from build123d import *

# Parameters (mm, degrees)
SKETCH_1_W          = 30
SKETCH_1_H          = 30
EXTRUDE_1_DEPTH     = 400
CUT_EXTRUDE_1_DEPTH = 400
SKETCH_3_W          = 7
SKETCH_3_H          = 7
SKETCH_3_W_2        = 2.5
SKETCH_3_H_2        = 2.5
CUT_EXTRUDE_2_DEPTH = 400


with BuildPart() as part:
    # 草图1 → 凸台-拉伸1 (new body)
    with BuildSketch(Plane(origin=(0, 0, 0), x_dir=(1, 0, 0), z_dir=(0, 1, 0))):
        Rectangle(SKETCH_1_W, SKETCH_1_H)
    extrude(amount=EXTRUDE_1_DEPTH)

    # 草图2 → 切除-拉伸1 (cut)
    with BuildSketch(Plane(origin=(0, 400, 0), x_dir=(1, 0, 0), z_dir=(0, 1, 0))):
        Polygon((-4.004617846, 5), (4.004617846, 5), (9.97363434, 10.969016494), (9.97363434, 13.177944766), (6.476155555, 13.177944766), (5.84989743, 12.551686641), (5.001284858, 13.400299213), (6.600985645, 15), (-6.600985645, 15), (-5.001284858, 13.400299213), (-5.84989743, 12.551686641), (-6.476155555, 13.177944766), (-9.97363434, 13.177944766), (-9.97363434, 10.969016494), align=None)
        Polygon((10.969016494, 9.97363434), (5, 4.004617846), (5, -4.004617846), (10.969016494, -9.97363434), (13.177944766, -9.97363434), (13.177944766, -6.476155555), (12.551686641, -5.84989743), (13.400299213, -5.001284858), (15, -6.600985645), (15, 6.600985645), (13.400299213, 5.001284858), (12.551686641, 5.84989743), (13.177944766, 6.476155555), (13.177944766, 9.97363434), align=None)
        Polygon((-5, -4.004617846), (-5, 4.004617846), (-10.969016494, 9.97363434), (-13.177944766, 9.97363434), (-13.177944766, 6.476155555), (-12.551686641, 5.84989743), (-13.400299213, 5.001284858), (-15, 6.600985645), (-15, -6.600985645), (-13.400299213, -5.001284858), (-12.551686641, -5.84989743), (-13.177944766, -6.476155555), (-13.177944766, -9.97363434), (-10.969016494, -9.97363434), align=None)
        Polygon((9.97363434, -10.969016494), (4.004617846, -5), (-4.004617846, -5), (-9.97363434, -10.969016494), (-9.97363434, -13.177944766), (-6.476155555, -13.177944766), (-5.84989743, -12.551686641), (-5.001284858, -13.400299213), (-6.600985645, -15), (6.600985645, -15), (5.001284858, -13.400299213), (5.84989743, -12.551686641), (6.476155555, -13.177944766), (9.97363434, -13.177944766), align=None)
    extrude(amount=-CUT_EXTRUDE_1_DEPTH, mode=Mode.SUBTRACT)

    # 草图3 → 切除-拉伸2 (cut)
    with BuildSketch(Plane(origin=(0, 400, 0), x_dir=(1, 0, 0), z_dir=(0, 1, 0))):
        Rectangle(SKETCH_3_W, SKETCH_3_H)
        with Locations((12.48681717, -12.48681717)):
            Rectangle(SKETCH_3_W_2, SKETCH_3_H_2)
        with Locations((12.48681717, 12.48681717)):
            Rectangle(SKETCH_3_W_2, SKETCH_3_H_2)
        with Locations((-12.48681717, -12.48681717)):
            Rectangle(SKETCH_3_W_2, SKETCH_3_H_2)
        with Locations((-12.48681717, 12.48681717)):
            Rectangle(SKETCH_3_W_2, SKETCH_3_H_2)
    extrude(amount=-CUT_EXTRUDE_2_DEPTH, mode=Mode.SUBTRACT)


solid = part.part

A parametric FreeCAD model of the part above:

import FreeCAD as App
import Part
import Sketcher
from FreeCAD import Vector
Q = App.Units.Quantity


def add_polygon(sketch, points):
    """Adds a closed chain of lines whose ends are joined by coincident constraints."""
    first, n = sketch.GeometryCount, len(points)
    for a, b in zip(points, points[1:] + points[:1]):
        sketch.addGeometry(Part.LineSegment(App.Vector(*a, 0), App.Vector(*b, 0)), False)
    for i in range(n):
        sketch.addConstraint(Sketcher.Constraint("Coincident", first + i, 2, first + (i + 1) % n, 1))

doc = App.newDocument("Part")
body = doc.addObject("PartDesign::Body", "Body")

# Sketch on XZ plane
sketch1 = doc.addObject("Sketcher::SketchObject", "Sketch")
body.addObject(sketch1)
sketch1.AttachmentSupport = (doc.XZ_Plane, [""])
sketch1.MapMode = "FlatFace"
add_polygon(sketch1, [(-15, -15), (-15, 15), (15, 15), (15, -15)])  # lines 0-3
sketch1.addConstraint(Sketcher.Constraint("Vertical", 0))
sketch1.addConstraint(Sketcher.Constraint("Horizontal", 1))
sketch1.addConstraint(Sketcher.Constraint("Vertical", 2))
sketch1.addConstraint(Sketcher.Constraint("Horizontal", 3))
sketch1.addConstraint(Sketcher.Constraint("Symmetric", 0, 2, 2, 2, -1, 1))
sketch1.addConstraint(Sketcher.Constraint("Equal", 3, 0))
sketch1.addConstraint(Sketcher.Constraint("DistanceX", 1, 1, 1, 2, Q("30 mm")))
pad1 = doc.addObject("PartDesign::Pad", "Pad")
body.addObject(pad1)
pad1.Profile = sketch1
pad1.Length = 400
pad1.Reversed = True

# Sketch on XZ plane
sketch2 = doc.addObject("Sketcher::SketchObject", "Sketch001")
body.addObject(sketch2)
sketch2.AttachmentSupport = (doc.XZ_Plane, [""])
sketch2.MapMode = "FlatFace"
sketch2.AttachmentOffset = App.Placement(Vector(0, 0, -400), App.Rotation())
add_polygon(sketch2, [(-4, -5), (4, -5), (10, -11), (10, -13.2), (6.5, -13.2), (5.8, -12.6), (5, -13.4), (6.6, -15), (-6.6, -15), (-5, -13.4), (-5.8, -12.6), (-6.5, -13.2), (-10, -13.2), (-10, -11)])  # lines 0-13
add_polygon(sketch2, [(11, -10), (5, -4), (5, 4), (11, 10), (13.2, 10), (13.2, 6.5), (12.6, 5.8), (13.4, 5), (15, 6.6), (15, -6.6), (13.4, -5), (12.6, -5.8), (13.2, -6.5), (13.2, -10)])  # lines 14-27
add_polygon(sketch2, [(-5, 4), (-5, -4), (-11, -10), (-13.2, -10), (-13.2, -6.5), (-12.6, -5.8), (-13.4, -5), (-15, -6.6), (-15, 6.6), (-13.4, 5), (-12.6, 5.8), (-13.2, 6.5), (-13.2, 10), (-11, 10)])  # lines 28-41
add_polygon(sketch2, [(10, 11), (4, 5), (-4, 5), (-10, 11), (-10, 13.2), (-6.5, 13.2), (-5.8, 12.6), (-5, 13.4), (-6.6, 15), (6.6, 15), (5, 13.4), (5.8, 12.6), (6.5, 13.2), (10, 13.2)])  # lines 42-55
sketch2.addConstraint(Sketcher.Constraint("Horizontal", 0))
sketch2.addConstraint(Sketcher.Constraint("Vertical", 2))
sketch2.addConstraint(Sketcher.Constraint("Horizontal", 3))
sketch2.addConstraint(Sketcher.Constraint("Horizontal", 7))
sketch2.addConstraint(Sketcher.Constraint("Horizontal", 11))
sketch2.addConstraint(Sketcher.Constraint("Vertical", 12))
sketch2.addConstraint(Sketcher.Constraint("Vertical", 15))
sketch2.addConstraint(Sketcher.Constraint("Horizontal", 17))
sketch2.addConstraint(Sketcher.Constraint("Vertical", 18))
sketch2.addConstraint(Sketcher.Constraint("Vertical", 22))
sketch2.addConstraint(Sketcher.Constraint("Vertical", 26))
sketch2.addConstraint(Sketcher.Constraint("Horizontal", 27))
sketch2.addConstraint(Sketcher.Constraint("Vertical", 28))
sketch2.addConstraint(Sketcher.Constraint("Horizontal", 30))
sketch2.addConstraint(Sketcher.Constraint("Vertical", 31))
sketch2.addConstraint(Sketcher.Constraint("Vertical", 35))
sketch2.addConstraint(Sketcher.Constraint("Vertical", 39))
sketch2.addConstraint(Sketcher.Constraint("Horizontal", 40))
sketch2.addConstraint(Sketcher.Constraint("Horizontal", 43))
sketch2.addConstraint(Sketcher.Constraint("Vertical", 45))
sketch2.addConstraint(Sketcher.Constraint("Horizontal", 46))
sketch2.addConstraint(Sketcher.Constraint("Horizontal", 50))
sketch2.addConstraint(Sketcher.Constraint("Horizontal", 54))
sketch2.addConstraint(Sketcher.Constraint("Vertical", 55))
sketch2.addConstraint(Sketcher.Constraint("Symmetric", 15, 2, 28, 2, -1, 1))
sketch2.addConstraint(Sketcher.Constraint("Symmetric", 16, 2, 29, 2, -1, 1))
sketch2.addConstraint(Sketcher.Constraint("Symmetric", 18, 2, 31, 2, -1, 1))
sketch2.addConstraint(Sketcher.Constraint("Symmetric", 19, 2, 32, 2, -1, 1))
sketch2.addConstraint(Sketcher.Constraint("Symmetric", 20, 2, 33, 2, -1, 1))
sketch2.addConstraint(Sketcher.Constraint("Symmetric", 21, 2, 34, 2, -1, 1))
sketch2.addConstraint(Sketcher.Constraint("Symmetric", 23, 2, 36, 2, -1, 1))
sketch2.addConstraint(Sketcher.Constraint("Symmetric", 24, 2, 37, 2, -1, 1))
sketch2.addConstraint(Sketcher.Constraint("Symmetric", 25, 2, 38, 2, -1, 1))
sketch2.addConstraint(Sketcher.Constraint("Symmetric", 27, 2, 40, 2, -1, 1))
sketch2.addConstraint(Sketcher.Constraint("Symmetric", 13, 2, 42, 2, -1, 1))
sketch2.addConstraint(Sketcher.Constraint("Symmetric", 1, 2, 44, 2, -1, 1))
sketch2.addConstraint(Sketcher.Constraint("Symmetric", 3, 2, 46, 2, -1, 1))
sketch2.addConstraint(Sketcher.Constraint("Symmetric", 4, 2, 47, 2, -1, 1))
sketch2.addConstraint(Sketcher.Constraint("Symmetric", 5, 2, 48, 2, -1, 1))
sketch2.addConstraint(Sketcher.Constraint("Symmetric", 6, 2, 49, 2, -1, 1))
sketch2.addConstraint(Sketcher.Constraint("Symmetric", 8, 2, 51, 2, -1, 1))
sketch2.addConstraint(Sketcher.Constraint("Symmetric", 9, 2, 52, 2, -1, 1))
sketch2.addConstraint(Sketcher.Constraint("Symmetric", 10, 2, 53, 2, -1, 1))
sketch2.addConstraint(Sketcher.Constraint("Symmetric", 12, 2, 55, 2, -1, 1))
sketch2.addConstraint(Sketcher.Constraint("Symmetric", 5, 2, 8, 2, -2))
sketch2.addConstraint(Sketcher.Constraint("Symmetric", 4, 2, 9, 2, -2))
sketch2.addConstraint(Sketcher.Constraint("Symmetric", 3, 2, 10, 2, -2))
sketch2.addConstraint(Sketcher.Constraint("Symmetric", 1, 2, 12, 2, -2))
sketch2.addConstraint(Sketcher.Constraint("Symmetric", 27, 2, 29, 2, -2))
sketch2.addConstraint(Sketcher.Constraint("Symmetric", 25, 2, 31, 2, -2))
sketch2.addConstraint(Sketcher.Constraint("Symmetric", 24, 2, 32, 2, -2))
sketch2.addConstraint(Sketcher.Constraint("Symmetric", 23, 2, 33, 2, -2))
sketch2.addConstraint(Sketcher.Constraint("Parallel", 1, 4))
sketch2.addConstraint(Sketcher.Constraint("Perpendicular", 4, 5))
sketch2.addConstraint(Sketcher.Constraint("Perpendicular", 5, 6))
sketch2.addConstraint(Sketcher.Constraint("Perpendicular", 6, 8))
sketch2.addConstraint(Sketcher.Constraint("Perpendicular", 8, 9))
sketch2.addConstraint(Sketcher.Constraint("Parallel", 10, 13))
sketch2.addConstraint(Sketcher.Constraint("Perpendicular", 13, 14))
sketch2.addConstraint(Sketcher.Constraint("Perpendicular", 14, 16))
sketch2.addConstraint(Sketcher.Constraint("Parallel", 16, 19))
sketch2.addConstraint(Sketcher.Constraint("Perpendicular", 19, 20))
sketch2.addConstraint(Sketcher.Constraint("Perpendicular", 20, 21))
sketch2.addConstraint(Sketcher.Constraint("Perpendicular", 21, 23))
sketch2.addConstraint(Sketcher.Constraint("Perpendicular", 34, 36))
sketch2.addConstraint(Sketcher.Constraint("Parallel", 38, 41))
sketch2.addConstraint(Sketcher.Constraint("Perpendicular", 42, 44))
sketch2.addConstraint(Sketcher.Constraint("Perpendicular", 49, 51))
sketch2.addConstraint(Sketcher.Constraint("Equal", 40, 2))
sketch2.addConstraint(Sketcher.Constraint("Equal", 43, 15))
sketch2.addConstraint(Sketcher.Constraint("Equal", 54, 18))
sketch2.addConstraint(Sketcher.Constraint("Equal", 50, 22))
sketch2.addConstraint(Sketcher.Constraint("Equal", 13, 14))
sketch2.addConstraint(Sketcher.Constraint("Equal", 10, 19))
sketch2.addConstraint(Sketcher.Constraint("Equal", 9, 20))
sketch2.addConstraint(Sketcher.Constraint("DistanceY", 0, 2, -1, 1, Q("5 mm")))
sketch2.addConstraint(Sketcher.Constraint("DistanceY", 6, 2, -1, 1, Q("15 mm")))
sketch2.addConstraint(Sketcher.Constraint("DistanceX", -1, 1, 14, 2, Q("5 mm")))
sketch2.addConstraint(Sketcher.Constraint("DistanceX", 3, 2, 3, 1, Q("3.497479 mm")))
sketch2.addConstraint(Sketcher.Constraint("DistanceX", 7, 2, 7, 1, Q("13.201971 mm")))
sketch2.addConstraint(Sketcher.Constraint("DistanceX", 17, 1, 17, 2, Q("2.208928 mm")))
sketch2.addConstraint(Sketcher.Constraint("DistanceY", 5, 2, -1, 1, Q("13.400299 mm")))
sketch2.addConstraint(Sketcher.Constraint("DistanceY", 1, 2, 14, 2, Q("6.964399 mm")))
sketch2.addConstraint(Sketcher.Constraint("DistanceY", 4, 2, 22, 2, Q("5.950701 mm")))
pocket1 = doc.addObject("PartDesign::Pocket", "Pocket")
body.addObject(pocket1)
pocket1.Profile = sketch2
pocket1.Length = 400
pocket1.Reversed = True

# Sketch on XZ plane
sketch3 = doc.addObject("Sketcher::SketchObject", "Sketch002")
body.addObject(sketch3)
sketch3.AttachmentSupport = (doc.XZ_Plane, [""])
sketch3.MapMode = "FlatFace"
sketch3.AttachmentOffset = App.Placement(Vector(0, 0, -400), App.Rotation())
add_polygon(sketch3, [(-3.5, -3.5), (-3.5, 3.5), (3.5, 3.5), (3.5, -3.5)])  # lines 0-3
add_polygon(sketch3, [(11.2, 11.2), (11.2, 13.7), (13.7, 13.7), (13.7, 11.2)])  # lines 4-7
add_polygon(sketch3, [(11.2, -13.7), (11.2, -11.2), (13.7, -11.2), (13.7, -13.7)])  # lines 8-11
add_polygon(sketch3, [(-13.7, 11.2), (-13.7, 13.7), (-11.2, 13.7), (-11.2, 11.2)])  # lines 12-15
add_polygon(sketch3, [(-13.7, -13.7), (-13.7, -11.2), (-11.2, -11.2), (-11.2, -13.7)])  # lines 16-19
sketch3.addConstraint(Sketcher.Constraint("Vertical", 0))
sketch3.addConstraint(Sketcher.Constraint("Horizontal", 1))
sketch3.addConstraint(Sketcher.Constraint("Vertical", 2))
sketch3.addConstraint(Sketcher.Constraint("Horizontal", 3))
sketch3.addConstraint(Sketcher.Constraint("Vertical", 4))
sketch3.addConstraint(Sketcher.Constraint("Horizontal", 5))
sketch3.addConstraint(Sketcher.Constraint("Vertical", 6))
sketch3.addConstraint(Sketcher.Constraint("Horizontal", 7))
sketch3.addConstraint(Sketcher.Constraint("Vertical", 8))
sketch3.addConstraint(Sketcher.Constraint("Horizontal", 9))
sketch3.addConstraint(Sketcher.Constraint("Vertical", 10))
sketch3.addConstraint(Sketcher.Constraint("Horizontal", 11))
sketch3.addConstraint(Sketcher.Constraint("Vertical", 12))
sketch3.addConstraint(Sketcher.Constraint("Horizontal", 13))
sketch3.addConstraint(Sketcher.Constraint("Vertical", 14))
sketch3.addConstraint(Sketcher.Constraint("Horizontal", 15))
sketch3.addConstraint(Sketcher.Constraint("Vertical", 16))
sketch3.addConstraint(Sketcher.Constraint("Horizontal", 17))
sketch3.addConstraint(Sketcher.Constraint("Vertical", 18))
sketch3.addConstraint(Sketcher.Constraint("Horizontal", 19))
sketch3.addConstraint(Sketcher.Constraint("Symmetric", 0, 2, 2, 2, -1, 1))
sketch3.addConstraint(Sketcher.Constraint("Symmetric", 10, 2, 12, 2, -1, 1))
sketch3.addConstraint(Sketcher.Constraint("Symmetric", 8, 2, 14, 2, -1, 1))
sketch3.addConstraint(Sketcher.Constraint("Symmetric", 6, 2, 16, 2, -1, 1))
sketch3.addConstraint(Sketcher.Constraint("Symmetric", 4, 2, 18, 2, -1, 1))
sketch3.addConstraint(Sketcher.Constraint("Symmetric", 5, 2, 12, 2, -2))
sketch3.addConstraint(Sketcher.Constraint("Symmetric", 7, 2, 14, 2, -2))
sketch3.addConstraint(Sketcher.Constraint("Equal", 3, 0))
sketch3.addConstraint(Sketcher.Constraint("Equal", 19, 4))
sketch3.addConstraint(Sketcher.Constraint("DistanceX", 1, 1, 1, 2, Q("7 mm")))
sketch3.addConstraint(Sketcher.Constraint("DistanceX", 5, 1, 5, 2, Q("2.5 mm")))
sketch3.addConstraint(Sketcher.Constraint("DistanceX", -1, 1, 4, 2, Q("11.236817 mm")))
sketch3.addConstraint(Sketcher.Constraint("DistanceY", -1, 1, 4, 2, Q("13.736817 mm")))
pocket2 = doc.addObject("PartDesign::Pocket", "Pocket001")
body.addObject(pocket2)
pocket2.Profile = sketch3
pocket2.Length = 400
pocket2.Reversed = True

doc.recompute()
